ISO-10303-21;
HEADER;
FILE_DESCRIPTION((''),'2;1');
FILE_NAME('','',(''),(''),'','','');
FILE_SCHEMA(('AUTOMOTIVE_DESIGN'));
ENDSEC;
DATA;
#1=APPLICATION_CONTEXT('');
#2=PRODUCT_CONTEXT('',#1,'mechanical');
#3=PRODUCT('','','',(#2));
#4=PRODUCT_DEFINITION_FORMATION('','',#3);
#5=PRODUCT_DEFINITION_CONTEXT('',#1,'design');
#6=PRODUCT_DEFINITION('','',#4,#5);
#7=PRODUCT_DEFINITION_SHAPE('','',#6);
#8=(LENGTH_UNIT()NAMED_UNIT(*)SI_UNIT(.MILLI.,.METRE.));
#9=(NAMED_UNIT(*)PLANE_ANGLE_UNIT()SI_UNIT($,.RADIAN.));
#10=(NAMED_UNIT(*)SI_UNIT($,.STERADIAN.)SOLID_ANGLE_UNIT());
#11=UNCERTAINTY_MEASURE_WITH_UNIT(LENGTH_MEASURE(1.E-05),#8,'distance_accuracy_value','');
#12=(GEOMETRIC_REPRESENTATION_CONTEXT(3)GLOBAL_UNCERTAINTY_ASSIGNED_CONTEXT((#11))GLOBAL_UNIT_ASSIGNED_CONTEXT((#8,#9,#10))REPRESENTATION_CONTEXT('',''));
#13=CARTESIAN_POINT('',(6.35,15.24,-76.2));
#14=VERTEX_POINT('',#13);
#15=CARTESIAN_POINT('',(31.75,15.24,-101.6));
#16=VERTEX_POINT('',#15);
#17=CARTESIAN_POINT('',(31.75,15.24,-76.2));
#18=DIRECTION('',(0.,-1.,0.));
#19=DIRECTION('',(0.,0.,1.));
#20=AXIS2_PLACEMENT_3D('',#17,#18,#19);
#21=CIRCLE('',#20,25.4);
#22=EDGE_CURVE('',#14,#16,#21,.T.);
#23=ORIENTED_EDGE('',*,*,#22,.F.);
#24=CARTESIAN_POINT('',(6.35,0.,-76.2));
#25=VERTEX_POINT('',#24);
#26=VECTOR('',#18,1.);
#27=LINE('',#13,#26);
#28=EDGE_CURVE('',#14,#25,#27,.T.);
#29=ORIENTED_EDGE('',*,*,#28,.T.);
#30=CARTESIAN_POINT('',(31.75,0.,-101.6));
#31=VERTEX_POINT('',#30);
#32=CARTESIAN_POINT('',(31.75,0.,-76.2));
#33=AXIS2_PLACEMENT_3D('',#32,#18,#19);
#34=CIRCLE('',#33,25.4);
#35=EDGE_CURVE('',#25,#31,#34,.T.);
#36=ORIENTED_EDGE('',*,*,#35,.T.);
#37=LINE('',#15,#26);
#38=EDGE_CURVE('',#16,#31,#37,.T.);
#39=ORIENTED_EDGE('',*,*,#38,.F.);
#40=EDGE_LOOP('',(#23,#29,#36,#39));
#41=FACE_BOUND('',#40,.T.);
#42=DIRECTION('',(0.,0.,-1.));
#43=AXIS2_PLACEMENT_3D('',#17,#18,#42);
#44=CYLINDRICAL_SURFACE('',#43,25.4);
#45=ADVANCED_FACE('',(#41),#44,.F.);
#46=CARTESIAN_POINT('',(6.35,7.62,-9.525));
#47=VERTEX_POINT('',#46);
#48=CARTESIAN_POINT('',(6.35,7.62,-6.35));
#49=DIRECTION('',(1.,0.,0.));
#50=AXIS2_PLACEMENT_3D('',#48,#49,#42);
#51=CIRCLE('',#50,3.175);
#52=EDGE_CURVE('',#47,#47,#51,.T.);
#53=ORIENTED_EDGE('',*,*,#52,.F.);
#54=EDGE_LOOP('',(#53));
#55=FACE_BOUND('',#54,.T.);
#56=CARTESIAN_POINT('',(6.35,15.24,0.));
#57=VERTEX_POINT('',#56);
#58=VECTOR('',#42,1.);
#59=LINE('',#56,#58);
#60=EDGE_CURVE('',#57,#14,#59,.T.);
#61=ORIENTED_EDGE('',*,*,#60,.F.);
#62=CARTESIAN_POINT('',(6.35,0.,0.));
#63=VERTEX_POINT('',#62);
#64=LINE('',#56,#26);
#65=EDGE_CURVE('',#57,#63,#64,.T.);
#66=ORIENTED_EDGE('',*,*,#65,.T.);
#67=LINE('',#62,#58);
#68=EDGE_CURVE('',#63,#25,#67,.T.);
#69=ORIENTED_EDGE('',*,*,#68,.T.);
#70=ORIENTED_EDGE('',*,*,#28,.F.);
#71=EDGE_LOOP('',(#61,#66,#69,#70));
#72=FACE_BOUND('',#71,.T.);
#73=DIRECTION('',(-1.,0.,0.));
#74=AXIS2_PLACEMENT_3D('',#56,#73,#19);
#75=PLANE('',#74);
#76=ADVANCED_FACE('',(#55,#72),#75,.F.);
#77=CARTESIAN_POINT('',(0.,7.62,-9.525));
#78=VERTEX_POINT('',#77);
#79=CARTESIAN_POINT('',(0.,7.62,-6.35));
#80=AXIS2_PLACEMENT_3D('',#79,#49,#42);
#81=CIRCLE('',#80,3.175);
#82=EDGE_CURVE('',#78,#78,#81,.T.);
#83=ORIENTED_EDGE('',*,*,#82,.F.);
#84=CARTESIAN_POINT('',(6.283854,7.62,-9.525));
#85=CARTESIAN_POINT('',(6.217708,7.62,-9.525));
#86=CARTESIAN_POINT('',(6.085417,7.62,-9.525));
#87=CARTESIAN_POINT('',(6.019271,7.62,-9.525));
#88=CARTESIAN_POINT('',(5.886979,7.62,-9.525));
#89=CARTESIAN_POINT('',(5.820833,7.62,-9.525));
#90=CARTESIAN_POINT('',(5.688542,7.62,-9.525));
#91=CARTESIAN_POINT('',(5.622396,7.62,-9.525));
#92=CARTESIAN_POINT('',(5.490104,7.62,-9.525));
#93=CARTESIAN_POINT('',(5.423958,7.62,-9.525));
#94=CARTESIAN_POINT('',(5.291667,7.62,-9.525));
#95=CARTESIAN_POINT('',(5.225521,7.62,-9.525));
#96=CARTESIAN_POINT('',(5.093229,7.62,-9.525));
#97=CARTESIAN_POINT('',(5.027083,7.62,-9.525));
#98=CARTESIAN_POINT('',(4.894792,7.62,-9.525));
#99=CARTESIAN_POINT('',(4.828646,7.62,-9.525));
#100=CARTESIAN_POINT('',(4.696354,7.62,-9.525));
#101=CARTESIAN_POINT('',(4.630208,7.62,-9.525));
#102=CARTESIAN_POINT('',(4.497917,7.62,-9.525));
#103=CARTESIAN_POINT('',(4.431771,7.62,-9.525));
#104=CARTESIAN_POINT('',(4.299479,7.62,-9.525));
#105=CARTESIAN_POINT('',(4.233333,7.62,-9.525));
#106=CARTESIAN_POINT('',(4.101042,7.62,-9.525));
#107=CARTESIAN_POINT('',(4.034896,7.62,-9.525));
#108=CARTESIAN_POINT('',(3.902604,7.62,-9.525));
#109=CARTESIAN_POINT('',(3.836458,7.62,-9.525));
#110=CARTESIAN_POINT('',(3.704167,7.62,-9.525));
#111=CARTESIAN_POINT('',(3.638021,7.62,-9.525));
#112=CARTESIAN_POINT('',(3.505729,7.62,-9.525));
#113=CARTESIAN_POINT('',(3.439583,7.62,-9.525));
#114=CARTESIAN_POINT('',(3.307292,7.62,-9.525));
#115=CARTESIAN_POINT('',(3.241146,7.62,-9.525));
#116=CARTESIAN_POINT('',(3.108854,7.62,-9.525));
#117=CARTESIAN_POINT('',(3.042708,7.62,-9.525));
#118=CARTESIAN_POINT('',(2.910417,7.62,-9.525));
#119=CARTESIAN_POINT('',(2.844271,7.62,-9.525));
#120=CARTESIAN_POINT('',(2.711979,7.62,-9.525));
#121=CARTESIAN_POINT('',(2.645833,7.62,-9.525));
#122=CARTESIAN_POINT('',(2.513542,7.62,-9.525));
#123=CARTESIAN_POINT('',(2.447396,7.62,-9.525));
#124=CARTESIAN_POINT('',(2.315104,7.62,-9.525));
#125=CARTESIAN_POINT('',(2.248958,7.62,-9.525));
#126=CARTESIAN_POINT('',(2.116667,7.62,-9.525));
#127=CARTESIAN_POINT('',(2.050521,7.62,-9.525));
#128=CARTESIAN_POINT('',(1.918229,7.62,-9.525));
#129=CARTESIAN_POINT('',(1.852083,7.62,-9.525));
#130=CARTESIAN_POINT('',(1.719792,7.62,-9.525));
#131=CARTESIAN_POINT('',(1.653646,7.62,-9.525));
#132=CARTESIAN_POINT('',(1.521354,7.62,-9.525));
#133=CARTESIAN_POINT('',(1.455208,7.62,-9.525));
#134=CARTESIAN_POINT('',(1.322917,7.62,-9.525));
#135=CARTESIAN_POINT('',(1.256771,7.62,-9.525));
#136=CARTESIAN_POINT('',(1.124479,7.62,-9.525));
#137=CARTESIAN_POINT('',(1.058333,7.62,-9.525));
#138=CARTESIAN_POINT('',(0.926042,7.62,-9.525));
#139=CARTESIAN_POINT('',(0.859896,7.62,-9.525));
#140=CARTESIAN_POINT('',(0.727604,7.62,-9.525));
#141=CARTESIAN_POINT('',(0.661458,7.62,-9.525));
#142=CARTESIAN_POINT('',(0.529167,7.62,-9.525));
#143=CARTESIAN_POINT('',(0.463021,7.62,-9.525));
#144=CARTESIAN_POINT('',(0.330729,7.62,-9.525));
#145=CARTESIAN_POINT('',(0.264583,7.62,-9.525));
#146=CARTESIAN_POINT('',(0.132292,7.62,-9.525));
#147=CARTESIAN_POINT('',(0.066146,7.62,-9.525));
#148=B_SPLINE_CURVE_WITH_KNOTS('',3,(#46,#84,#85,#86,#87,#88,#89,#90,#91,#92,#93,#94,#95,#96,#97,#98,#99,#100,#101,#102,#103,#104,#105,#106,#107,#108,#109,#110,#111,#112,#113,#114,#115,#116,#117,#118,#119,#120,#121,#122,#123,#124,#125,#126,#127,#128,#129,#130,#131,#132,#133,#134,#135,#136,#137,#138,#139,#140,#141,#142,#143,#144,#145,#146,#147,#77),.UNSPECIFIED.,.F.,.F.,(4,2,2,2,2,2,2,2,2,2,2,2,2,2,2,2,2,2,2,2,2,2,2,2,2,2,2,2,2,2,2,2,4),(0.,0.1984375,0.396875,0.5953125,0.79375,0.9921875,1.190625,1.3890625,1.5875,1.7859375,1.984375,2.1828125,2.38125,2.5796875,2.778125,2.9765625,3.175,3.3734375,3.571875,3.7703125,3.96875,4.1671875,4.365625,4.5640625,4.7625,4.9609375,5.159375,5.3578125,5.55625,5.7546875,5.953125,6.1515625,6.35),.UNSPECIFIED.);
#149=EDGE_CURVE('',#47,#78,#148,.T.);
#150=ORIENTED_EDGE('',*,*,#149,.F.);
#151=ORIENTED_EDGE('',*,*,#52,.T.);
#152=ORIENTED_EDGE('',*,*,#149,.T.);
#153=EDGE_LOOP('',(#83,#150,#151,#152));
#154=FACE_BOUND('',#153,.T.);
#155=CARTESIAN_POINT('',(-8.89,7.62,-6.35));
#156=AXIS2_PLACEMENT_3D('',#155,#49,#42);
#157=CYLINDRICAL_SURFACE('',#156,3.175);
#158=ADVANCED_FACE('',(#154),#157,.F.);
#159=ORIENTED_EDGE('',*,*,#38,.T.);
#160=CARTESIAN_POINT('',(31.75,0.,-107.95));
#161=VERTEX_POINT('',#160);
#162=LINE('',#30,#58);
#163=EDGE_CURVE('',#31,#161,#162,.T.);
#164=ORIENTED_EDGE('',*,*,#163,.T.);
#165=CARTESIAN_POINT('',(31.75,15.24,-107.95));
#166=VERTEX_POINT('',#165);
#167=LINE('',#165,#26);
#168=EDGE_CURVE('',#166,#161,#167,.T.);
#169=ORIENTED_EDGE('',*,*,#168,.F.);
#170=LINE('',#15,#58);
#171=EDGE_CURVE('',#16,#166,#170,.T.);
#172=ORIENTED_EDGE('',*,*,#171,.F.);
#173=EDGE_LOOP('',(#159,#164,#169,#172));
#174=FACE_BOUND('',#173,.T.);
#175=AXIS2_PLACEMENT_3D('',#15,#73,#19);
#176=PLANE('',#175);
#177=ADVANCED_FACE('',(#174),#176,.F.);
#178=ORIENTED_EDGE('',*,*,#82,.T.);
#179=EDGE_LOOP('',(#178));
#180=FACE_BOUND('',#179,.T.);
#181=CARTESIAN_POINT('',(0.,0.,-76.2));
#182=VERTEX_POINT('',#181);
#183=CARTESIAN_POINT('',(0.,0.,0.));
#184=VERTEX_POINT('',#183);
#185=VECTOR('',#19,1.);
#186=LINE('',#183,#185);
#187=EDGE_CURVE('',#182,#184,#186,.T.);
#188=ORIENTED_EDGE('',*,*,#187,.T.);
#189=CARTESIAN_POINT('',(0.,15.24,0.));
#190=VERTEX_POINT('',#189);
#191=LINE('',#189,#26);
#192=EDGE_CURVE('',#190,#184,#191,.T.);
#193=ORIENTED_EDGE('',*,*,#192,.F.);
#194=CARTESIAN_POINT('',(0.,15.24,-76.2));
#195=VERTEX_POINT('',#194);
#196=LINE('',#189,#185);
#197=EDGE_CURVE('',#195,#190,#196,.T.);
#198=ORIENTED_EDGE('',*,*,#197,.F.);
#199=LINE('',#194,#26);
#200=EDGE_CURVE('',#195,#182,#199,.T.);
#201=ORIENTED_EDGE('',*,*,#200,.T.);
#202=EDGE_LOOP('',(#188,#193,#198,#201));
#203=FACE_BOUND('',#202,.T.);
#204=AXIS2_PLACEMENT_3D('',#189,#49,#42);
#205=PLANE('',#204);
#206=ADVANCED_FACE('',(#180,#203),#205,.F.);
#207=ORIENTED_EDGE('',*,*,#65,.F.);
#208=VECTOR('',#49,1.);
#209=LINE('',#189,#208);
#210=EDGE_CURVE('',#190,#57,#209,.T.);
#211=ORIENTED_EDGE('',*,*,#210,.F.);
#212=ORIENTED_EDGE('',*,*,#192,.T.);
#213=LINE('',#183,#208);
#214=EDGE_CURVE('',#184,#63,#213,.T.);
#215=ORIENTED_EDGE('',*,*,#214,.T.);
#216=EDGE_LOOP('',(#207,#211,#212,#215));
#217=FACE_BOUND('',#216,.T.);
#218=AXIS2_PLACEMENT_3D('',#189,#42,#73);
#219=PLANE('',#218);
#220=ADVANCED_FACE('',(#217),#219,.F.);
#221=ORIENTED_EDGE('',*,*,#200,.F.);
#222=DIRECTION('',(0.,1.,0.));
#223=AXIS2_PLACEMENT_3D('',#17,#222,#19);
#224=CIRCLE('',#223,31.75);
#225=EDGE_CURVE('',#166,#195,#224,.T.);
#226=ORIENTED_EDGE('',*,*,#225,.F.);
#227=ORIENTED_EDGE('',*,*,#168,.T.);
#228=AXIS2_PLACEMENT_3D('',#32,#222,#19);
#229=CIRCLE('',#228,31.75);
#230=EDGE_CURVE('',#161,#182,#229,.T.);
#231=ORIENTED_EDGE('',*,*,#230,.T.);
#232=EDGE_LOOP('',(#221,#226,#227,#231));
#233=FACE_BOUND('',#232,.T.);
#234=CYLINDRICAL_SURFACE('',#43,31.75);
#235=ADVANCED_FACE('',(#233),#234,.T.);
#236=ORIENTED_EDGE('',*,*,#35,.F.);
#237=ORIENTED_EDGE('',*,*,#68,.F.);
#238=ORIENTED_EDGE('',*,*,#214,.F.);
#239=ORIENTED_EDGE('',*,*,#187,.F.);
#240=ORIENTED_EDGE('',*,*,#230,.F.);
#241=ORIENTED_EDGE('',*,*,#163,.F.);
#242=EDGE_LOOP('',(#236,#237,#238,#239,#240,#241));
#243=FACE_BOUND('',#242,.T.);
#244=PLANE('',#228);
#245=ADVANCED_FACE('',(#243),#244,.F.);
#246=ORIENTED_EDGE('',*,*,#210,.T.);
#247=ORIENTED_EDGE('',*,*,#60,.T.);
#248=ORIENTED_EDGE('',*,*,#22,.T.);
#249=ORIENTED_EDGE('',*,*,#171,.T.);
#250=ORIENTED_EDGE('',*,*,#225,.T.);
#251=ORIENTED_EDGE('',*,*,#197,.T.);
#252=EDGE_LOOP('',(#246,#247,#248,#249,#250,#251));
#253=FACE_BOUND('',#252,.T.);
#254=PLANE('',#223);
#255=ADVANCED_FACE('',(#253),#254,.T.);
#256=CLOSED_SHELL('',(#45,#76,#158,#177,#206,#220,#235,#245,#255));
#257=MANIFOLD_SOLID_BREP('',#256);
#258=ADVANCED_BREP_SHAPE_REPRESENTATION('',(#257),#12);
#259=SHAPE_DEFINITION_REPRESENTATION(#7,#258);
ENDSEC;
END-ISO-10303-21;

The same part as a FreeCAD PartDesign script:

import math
import FreeCAD as App
import Part
import Sketcher
from FreeCAD import Vector
Q = App.Units.Quantity

doc = App.newDocument("Part")
body = doc.addObject("PartDesign::Body", "Body")

# Sketch on XZ plane
sketch1 = doc.addObject("Sketcher::SketchObject", "Sketch")
body.addObject(sketch1)
sketch1.AttachmentSupport = (doc.XZ_Plane, [""])
sketch1.MapMode = "FlatFace"
sketch1.addGeometry([
    Part.LineSegment(Vector(32, -102, 0), Vector(32, -108, 0)),  # 0
    Part.ArcOfCircle(Part.Circle(Vector(32, -76, 0), Vector(0, 0, 1), 32), math.radians(180), math.radians(270)),  # 1
    Part.LineSegment(Vector(0, -76, 0), Vector(0, 0, 0)),  # 2
    Part.LineSegment(Vector(0, 0, 0), Vector(6, 0, 0)),  # 3
    Part.LineSegment(Vector(6, 0, 0), Vector(6, -76, 0)),  # 4
    Part.ArcOfCircle(Part.Circle(Vector(32, -76, 0), Vector(0, 0, 1), 25), math.radians(180), math.radians(270)),  # 5
], False)
sketch1.addConstraint([
    Sketcher.Constraint("Coincident", 0, 2, 1, 2),
    Sketcher.Constraint("Tangent", 1, 1, 2, 1),
    Sketcher.Constraint("Coincident", 2, 2, 3, 1),
    Sketcher.Constraint("Coincident", 3, 2, 4, 1),
    Sketcher.Constraint("Tangent", 4, 2, 5, 1),
    Sketcher.Constraint("Coincident", 5, 2, 0, 1),
    Sketcher.Constraint("Vertical", 0),
    Sketcher.Constraint("Vertical", 2),
    Sketcher.Constraint("Horizontal", 3),
    Sketcher.Constraint("Vertical", 4),
    Sketcher.Constraint("Coincident", 2, 2, -1, 1),
    Sketcher.Constraint("Coincident", 5, 3, 1, 3),
    Sketcher.Constraint("Vertical", 5, 3, 0, 2),
    Sketcher.Constraint("Radius", 5, Q("1 in")),
    Sketcher.Constraint("DistanceY", 2, 1, 2, 2, Q("3 in")),
    Sketcher.Constraint("Radius", 1, Q("1.25 in")),
])
pad1 = doc.addObject("PartDesign::Pad", "Pad")
body.addObject(pad1)
pad1.Profile = sketch1
pad1.Length = Q("0.6 in")
pad1.Reversed = True

# Sketch on YZ plane
sketch2 = doc.addObject("Sketcher::SketchObject", "Sketch001")
body.addObject(sketch2)
sketch2.AttachmentSupport = (doc.YZ_Plane, [""])
sketch2.MapMode = "FlatFace"
sketch2.AttachmentOffset = App.Placement(Vector(0, 0, 0.25 * 25.4), App.Rotation())
sketch2.addGeometry(Part.Circle(Vector(7.6, -6.3, 0), Vector(0, 0, 1), 3.2), False)
sketch2.addConstraint([
    Sketcher.Constraint("Diameter", 0, Q("0.25 in")),
    Sketcher.Constraint("DistanceX", -1, 1, 0, 3, Q("0.3 in")),
    Sketcher.Constraint("DistanceY", 0, 3, -1, 1, Q("0.25 in")),
])
pocket1 = doc.addObject("PartDesign::Pocket", "Pocket")
body.addObject(pocket1)
pocket1.Profile = sketch2
pocket1.Length = Q("0.6 in")

doc.recompute()
